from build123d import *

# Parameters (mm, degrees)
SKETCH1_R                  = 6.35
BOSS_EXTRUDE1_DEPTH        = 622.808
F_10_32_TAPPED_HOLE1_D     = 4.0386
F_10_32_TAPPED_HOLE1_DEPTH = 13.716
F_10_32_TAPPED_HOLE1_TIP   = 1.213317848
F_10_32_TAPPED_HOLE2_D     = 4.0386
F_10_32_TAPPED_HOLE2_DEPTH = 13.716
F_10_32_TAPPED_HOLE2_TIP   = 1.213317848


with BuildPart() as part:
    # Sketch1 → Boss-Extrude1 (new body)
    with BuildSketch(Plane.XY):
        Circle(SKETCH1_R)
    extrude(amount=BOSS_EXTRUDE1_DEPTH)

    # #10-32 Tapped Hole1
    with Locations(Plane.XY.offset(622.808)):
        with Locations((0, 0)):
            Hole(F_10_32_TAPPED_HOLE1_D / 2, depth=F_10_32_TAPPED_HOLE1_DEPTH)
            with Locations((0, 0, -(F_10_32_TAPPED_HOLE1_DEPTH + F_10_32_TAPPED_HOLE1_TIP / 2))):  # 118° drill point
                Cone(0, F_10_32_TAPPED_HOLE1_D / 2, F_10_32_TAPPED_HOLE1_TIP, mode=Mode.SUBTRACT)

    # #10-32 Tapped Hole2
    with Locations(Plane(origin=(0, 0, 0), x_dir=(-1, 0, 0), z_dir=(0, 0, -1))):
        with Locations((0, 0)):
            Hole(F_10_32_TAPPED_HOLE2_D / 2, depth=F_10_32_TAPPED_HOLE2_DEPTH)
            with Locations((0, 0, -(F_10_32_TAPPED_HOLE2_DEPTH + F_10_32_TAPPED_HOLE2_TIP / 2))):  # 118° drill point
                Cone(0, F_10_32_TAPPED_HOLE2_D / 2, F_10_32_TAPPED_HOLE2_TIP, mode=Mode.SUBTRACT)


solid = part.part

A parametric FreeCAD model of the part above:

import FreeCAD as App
import Part
import Sketcher
Q = App.Units.Quantity

doc = App.newDocument("Part")
body = doc.addObject("PartDesign::Body", "Body")

# Sketch on XY plane
sketch1 = body.newObject("Sketcher::SketchObject", "Sketch")
sketch1.AttachmentSupport = (doc.getObject("XY_Plane"), [""])
sketch1.MapMode = "FlatFace"
sketch1.addGeometry(Part.Circle(App.Vector(0, 0, 0), App.Vector(0, 0, 1), 6), False)
sketch1.addConstraint([
    Sketcher.Constraint("Coincident", 0, 3, -1, 1),
    Sketcher.Constraint("Diameter", 0, Q("0.5 in")),
])
pad1 = body.newObject("PartDesign::Pad", "Pad")
pad1.Profile = sketch1
pad1.Length = Q("24.52 in")

# Sketch on XY plane
sketch2 = body.newObject("Sketcher::SketchObject", "Sketch001")
sketch2.AttachmentSupport = (doc.getObject("XY_Plane"), [""])
sketch2.MapMode = "FlatFace"
sketch2.AttachmentOffset = App.Placement(App.Vector(0, 0, 24.52 * 25.4), App.Rotation())
sketch2.addGeometry(Part.Circle(App.Vector(0, 0, 0), App.Vector(0, 0, 1), 2), False)
sketch2.addConstraint([
    Sketcher.Constraint("Coincident", 0, 3, -1, 1),
    Sketcher.Constraint("Diameter", 0, Q("0.159 in")),
])
doc.recompute()
hole = body.newObject("PartDesign::Hole", "Hole")
hole.Profile = sketch2
hole.ThreadType = "None"
hole.Diameter = Q("0.159 in")
hole.DepthType = "Dimension"
hole.Depth = Q("0.54 in")
hole.DrillPoint = "Angled"
hole.DrillPointAngle = 118

# Sketch on XY plane
sketch3 = body.newObject("Sketcher::SketchObject", "Sketch002")
sketch3.AttachmentSupport = (doc.getObject("XY_Plane"), [""])
sketch3.MapMode = "FlatFace"
sketch3.addGeometry(Part.Circle(App.Vector(0, 0, 0), App.Vector(0, 0, 1), 2), False)
sketch3.addConstraint([
    Sketcher.Constraint("Coincident", 0, 3, -1, 1),
    Sketcher.Constraint("Diameter", 0, Q("0.159 in")),
])
doc.recompute()
hole2 = body.newObject("PartDesign::Hole", "Hole001")
hole2.Profile = sketch3
hole2.ThreadType = "None"
hole2.Diameter = Q("0.159 in")
hole2.DepthType = "Dimension"
hole2.Depth = Q("0.54 in")
hole2.DrillPoint = "Angled"
hole2.DrillPointAngle = 118
hole2.Reversed = True

doc.recompute()
